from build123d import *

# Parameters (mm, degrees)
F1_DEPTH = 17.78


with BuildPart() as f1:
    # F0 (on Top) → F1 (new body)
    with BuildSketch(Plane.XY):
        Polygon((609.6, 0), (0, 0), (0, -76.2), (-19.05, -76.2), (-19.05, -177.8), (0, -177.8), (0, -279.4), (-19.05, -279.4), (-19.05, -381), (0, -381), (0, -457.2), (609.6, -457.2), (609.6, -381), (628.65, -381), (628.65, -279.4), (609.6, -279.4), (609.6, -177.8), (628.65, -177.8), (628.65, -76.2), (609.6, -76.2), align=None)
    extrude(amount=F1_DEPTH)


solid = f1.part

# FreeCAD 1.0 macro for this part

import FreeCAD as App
import Part
import Sketcher
from FreeCAD import Vector
Q = App.Units.Quantity


def add_polygon(sketch, points):
    """Adds a closed chain of lines whose ends are joined by coincident constraints."""
    first, n = sketch.GeometryCount, len(points)
    for a, b in zip(points, points[1:] + points[:1]):
        sketch.addGeometry(Part.LineSegment(App.Vector(*a, 0), App.Vector(*b, 0)), False)
    for i in range(n):
        sketch.addConstraint(Sketcher.Constraint("Coincident", first + i, 2, first + (i + 1) % n, 1))

doc = App.newDocument("Part")
body = doc.addObject("PartDesign::Body", "Body")

# Sketch on XY plane
sketch1 = body.newObject("Sketcher::SketchObject", "Sketch")
sketch1.AttachmentSupport = (doc.getObject("XY_Plane"), [""])
sketch1.MapMode = "FlatFace"
add_polygon(sketch1, [(609.6, 0), (0, 0), (0, -76.2), (-19.05, -76.2), (-19.05, -177.8), (0, -177.8), (0, -279.4), (-19.05, -279.4), (-19.05, -381), (0, -381), (0, -457.2), (609.6, -457.2), (609.6, -381), (628.65, -381), (628.65, -279.4), (609.6, -279.4), (609.6, -177.8), (628.65, -177.8), (628.65, -76.2), (609.6, -76.2)])  # lines 0-19
sketch1.addConstraint([
    Sketcher.Constraint("Horizontal", 0),
    Sketcher.Constraint("Vertical", 1),
    Sketcher.Constraint("Horizontal", 2),
    Sketcher.Constraint("Vertical", 3),
    Sketcher.Constraint("Horizontal", 4),
    Sketcher.Constraint("Vertical", 5),
    Sketcher.Constraint("Horizontal", 6),
    Sketcher.Constraint("Vertical", 7),
    Sketcher.Constraint("Horizontal", 8),
    Sketcher.Constraint("Vertical", 9),
    Sketcher.Constraint("Horizontal", 10),
    Sketcher.Constraint("Vertical", 11),
    Sketcher.Constraint("Horizontal", 12),
    Sketcher.Constraint("Vertical", 13),
    Sketcher.Constraint("Horizontal", 14),
    Sketcher.Constraint("Vertical", 15),
    Sketcher.Constraint("Horizontal", 16),
    Sketcher.Constraint("Vertical", 17),
    Sketcher.Constraint("Horizontal", 18),
    Sketcher.Constraint("Vertical", 19),
    Sketcher.Constraint("Coincident", 0, 2, -1, 1),
    Sketcher.Constraint("PointOnObject", 4, 2, -2),
    Sketcher.Constraint("PointOnObject", 8, 2, -2),
    Sketcher.Constraint("Horizontal", 8, 2, 11, 2),
    Sketcher.Constraint("Horizontal", 6, 2, 13, 2),
    Sketcher.Constraint("Horizontal", 4, 2, 15, 2),
    Sketcher.Constraint("Horizontal", 2, 2, 17, 2),
    Sketcher.Constraint("Vertical", 3, 2, 6, 2),
    Sketcher.Constraint("Vertical", 11, 2, 14, 2),
    Sketcher.Constraint("Vertical", 13, 2, 16, 2),
    Sketcher.Constraint("Vertical", 15, 2, 18, 2),
    Sketcher.Constraint("Equal", 8, 12),
    Sketcher.Constraint("Equal", 3, 5),
    Sketcher.Constraint("Equal", 5, 7),
    Sketcher.Constraint("Equal", 1, 9),
    Sketcher.Constraint("DistanceX", 0, 2, 0, 1, Q("24 in")),
    Sketcher.Constraint("DistanceY", 1, 2, 1, 1, Q("3 in")),
    Sketcher.Constraint("DistanceY", 3, 2, 3, 1, Q("4 in")),
    Sketcher.Constraint("DistanceX", 2, 2, 2, 1, Q("0.75 in")),
])
pad1 = body.newObject("PartDesign::Pad", "Pad")
pad1.Profile = sketch1
pad1.Length = Q("0.7 in")

doc.recompute()
